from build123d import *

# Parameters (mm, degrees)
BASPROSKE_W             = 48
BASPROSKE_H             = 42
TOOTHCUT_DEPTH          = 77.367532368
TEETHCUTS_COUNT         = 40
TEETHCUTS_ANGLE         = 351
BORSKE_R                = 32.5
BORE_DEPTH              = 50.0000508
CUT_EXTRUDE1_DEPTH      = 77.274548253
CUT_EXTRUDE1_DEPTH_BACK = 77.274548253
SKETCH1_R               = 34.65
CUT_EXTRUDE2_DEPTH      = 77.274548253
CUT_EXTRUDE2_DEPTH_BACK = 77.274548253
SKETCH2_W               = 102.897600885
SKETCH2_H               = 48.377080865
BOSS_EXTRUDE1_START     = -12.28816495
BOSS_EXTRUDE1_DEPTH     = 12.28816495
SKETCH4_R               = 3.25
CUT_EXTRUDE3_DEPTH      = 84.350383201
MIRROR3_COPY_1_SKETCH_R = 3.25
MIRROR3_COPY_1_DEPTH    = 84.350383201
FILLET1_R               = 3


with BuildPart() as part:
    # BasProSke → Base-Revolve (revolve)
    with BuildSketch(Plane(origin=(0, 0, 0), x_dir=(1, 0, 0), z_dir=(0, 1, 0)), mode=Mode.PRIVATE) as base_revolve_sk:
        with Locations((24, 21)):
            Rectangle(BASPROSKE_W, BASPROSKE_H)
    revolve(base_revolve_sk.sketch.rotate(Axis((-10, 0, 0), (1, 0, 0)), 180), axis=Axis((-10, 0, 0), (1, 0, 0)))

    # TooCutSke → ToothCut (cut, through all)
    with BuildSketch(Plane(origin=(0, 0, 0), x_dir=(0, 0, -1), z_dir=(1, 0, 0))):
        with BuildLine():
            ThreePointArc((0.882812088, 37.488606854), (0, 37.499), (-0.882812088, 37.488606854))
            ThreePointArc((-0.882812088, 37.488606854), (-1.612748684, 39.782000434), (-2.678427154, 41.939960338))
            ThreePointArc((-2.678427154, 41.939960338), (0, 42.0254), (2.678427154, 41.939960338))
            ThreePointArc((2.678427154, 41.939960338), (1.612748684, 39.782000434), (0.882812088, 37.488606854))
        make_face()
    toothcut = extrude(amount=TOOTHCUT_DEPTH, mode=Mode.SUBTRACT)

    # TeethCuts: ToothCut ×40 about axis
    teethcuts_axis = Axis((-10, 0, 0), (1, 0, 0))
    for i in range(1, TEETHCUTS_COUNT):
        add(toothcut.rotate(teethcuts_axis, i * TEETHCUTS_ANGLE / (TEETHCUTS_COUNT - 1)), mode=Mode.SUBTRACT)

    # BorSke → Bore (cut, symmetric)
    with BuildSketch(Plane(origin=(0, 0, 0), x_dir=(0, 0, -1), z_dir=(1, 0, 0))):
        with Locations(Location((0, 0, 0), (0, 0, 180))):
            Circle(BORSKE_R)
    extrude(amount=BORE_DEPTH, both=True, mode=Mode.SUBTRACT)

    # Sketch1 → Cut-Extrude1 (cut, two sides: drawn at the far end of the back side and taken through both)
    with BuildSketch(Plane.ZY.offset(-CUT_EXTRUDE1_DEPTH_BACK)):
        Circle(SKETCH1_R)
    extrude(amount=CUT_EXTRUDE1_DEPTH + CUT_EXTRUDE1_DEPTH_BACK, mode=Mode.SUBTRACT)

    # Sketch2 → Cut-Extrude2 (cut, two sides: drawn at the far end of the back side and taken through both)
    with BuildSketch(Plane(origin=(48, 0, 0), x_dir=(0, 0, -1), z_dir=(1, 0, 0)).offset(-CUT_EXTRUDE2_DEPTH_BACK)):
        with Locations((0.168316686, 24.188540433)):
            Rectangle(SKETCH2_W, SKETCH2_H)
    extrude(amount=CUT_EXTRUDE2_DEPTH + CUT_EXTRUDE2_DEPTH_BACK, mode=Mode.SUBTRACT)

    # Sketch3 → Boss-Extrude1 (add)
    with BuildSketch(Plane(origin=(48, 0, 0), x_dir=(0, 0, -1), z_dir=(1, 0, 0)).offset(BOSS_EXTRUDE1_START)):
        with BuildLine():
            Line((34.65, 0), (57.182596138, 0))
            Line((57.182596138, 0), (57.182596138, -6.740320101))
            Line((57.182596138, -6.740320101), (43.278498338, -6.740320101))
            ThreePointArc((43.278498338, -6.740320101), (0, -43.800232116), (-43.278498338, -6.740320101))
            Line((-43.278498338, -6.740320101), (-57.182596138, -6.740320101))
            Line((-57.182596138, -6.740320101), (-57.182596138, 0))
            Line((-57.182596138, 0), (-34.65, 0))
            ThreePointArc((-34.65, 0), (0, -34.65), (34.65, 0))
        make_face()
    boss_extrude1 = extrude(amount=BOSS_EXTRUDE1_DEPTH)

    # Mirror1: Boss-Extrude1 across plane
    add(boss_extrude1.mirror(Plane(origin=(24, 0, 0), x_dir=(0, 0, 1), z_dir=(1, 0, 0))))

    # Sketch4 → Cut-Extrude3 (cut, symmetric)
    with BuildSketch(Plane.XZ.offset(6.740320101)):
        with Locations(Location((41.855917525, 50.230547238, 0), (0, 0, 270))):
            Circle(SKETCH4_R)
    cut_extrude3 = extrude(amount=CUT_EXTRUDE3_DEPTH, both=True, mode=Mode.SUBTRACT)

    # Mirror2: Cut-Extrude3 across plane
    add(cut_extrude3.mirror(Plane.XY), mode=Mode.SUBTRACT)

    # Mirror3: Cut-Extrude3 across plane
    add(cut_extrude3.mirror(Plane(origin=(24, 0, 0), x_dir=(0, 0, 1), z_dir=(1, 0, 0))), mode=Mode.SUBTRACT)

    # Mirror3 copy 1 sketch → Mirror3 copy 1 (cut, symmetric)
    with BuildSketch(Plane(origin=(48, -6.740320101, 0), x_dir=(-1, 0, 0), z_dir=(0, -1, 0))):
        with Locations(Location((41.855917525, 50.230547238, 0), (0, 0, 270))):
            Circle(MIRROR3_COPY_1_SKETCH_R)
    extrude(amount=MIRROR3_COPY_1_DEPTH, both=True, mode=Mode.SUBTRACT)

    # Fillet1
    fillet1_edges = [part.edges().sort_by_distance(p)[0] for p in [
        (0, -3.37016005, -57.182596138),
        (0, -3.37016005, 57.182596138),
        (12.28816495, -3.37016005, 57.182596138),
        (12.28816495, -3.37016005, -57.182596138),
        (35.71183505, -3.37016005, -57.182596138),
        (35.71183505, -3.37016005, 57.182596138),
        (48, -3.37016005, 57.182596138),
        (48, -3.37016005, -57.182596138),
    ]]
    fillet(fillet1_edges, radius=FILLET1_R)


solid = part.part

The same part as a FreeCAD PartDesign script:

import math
import FreeCAD as App
import Part
import Sketcher


def edges_at(feature, points):
    """Names of the edges that pass closest to the given points."""
    edges = feature.Shape.Edges
    near = lambda p: min(range(len(edges)), key=lambda i: edges[i].distToShape(Part.Vertex(*p))[0])
    return sorted({f"Edge{near(p) + 1}" for p in points})


def add_polygon(sketch, points):
    """Adds a closed chain of lines whose ends are joined by coincident constraints."""
    first, n = sketch.GeometryCount, len(points)
    for a, b in zip(points, points[1:] + points[:1]):
        sketch.addGeometry(Part.LineSegment(App.Vector(*a, 0), App.Vector(*b, 0)), False)
    for i in range(n):
        sketch.addConstraint(Sketcher.Constraint("Coincident", first + i, 2, first + (i + 1) % n, 1))

doc = App.newDocument("Part")
params = doc.addObject("Spreadsheet::Sheet", "Params")
for row, (alias, value) in enumerate([
    ("sketch1_width", "48 mm"),
    ("sketch1_height", "42 mm"),
    ("revolution_angle", "360 deg"),
    ("sketch2_radius", "16 mm"),
    ("sketch3_diameter", "65 mm"),
    ("pocket2_length", "100.000102 mm"),
    ("sketch4_diameter", "69.3 mm"),
    ("sketch6_radius", "34.65 mm"),
    ("pad1_length", "12.288165 mm"),
    ("sketch7_diameter", "6.5 mm"),
    ("pocket5_length", "168.700766 mm"),
    ("sketch8_diameter", "6.5 mm"),
    ("pocket6_length", "168.700766 mm"),
    ("fillet_radius", "3 mm"),
], start=1):
    params.set(f"A{row}", alias)
    params.set(f"B{row}", "=" + value)
    params.setAlias(f"B{row}", alias)

body = doc.addObject("PartDesign::Body", "Body")

# Sketch on XZ plane
sketch1 = body.newObject("Sketcher::SketchObject", "Sketch")
sketch1.AttachmentSupport = (doc.getObject("XZ_Plane"), [""])
sketch1.MapMode = "FlatFace"
add_polygon(sketch1, [(0, -42), (0, 0), (48, 0), (48, -42)])  # lines 0-3
sketch1.addConstraint([
    Sketcher.Constraint("Vertical", 0),
    Sketcher.Constraint("Horizontal", 1),
    Sketcher.Constraint("Vertical", 2),
    Sketcher.Constraint("Horizontal", 3),
    Sketcher.Constraint("Coincident", 0, 2, -1, 1),
    Sketcher.Constraint("DistanceX", 1, 1, 1, 2, 48.0),
    Sketcher.Constraint("DistanceY", 0, 1, 0, 2, 42.0),
])
sketch1.setExpression("Constraints[9]", "Params.sketch1_width")
sketch1.setExpression("Constraints[10]", "Params.sketch1_height")
revolution = body.newObject("PartDesign::Revolution", "Revolution")
revolution.Profile = sketch1
revolution.ReferenceAxis = (sketch1, ["H_Axis"])
revolution.setExpression("Angle", "Params.revolution_angle")

# Sketch on YZ plane
sketch2 = body.newObject("Sketcher::SketchObject", "Sketch001")
sketch2.AttachmentSupport = (doc.getObject("YZ_Plane"), [""])
sketch2.MapMode = "FlatFace"
sketch2.addGeometry([
    Part.ArcOfCircle(Part.Circle(App.Vector(0, 0, 0), App.Vector(0, 0, 1), 37.5), math.radians(-1.35), math.radians(1.35)),
    Part.ArcOfCircle(Part.Circle(App.Vector(33.8, -16.5, 0), App.Vector(0, 0, 1), 16), math.radians(59.4), math.radians(76.66)),
    Part.ArcOfCircle(Part.Circle(App.Vector(0, 0, 0), App.Vector(0, 0, 1), 42), math.radians(-3.65), math.radians(3.65)),
    Part.ArcOfCircle(Part.Circle(App.Vector(33.8, 16.5, 0), App.Vector(0, 0, 1), 16), math.radians(-76.66), math.radians(-59.4)),
], False)
sketch2.addConstraint([
    Sketcher.Constraint("Coincident", 0, 1, 1, 2),
    Sketcher.Constraint("Coincident", 1, 1, 2, 1),
    Sketcher.Constraint("Coincident", 2, 2, 3, 2),
    Sketcher.Constraint("Coincident", 3, 1, 0, 2),
    Sketcher.Constraint("Coincident", 0, 3, -1, 1),
    Sketcher.Constraint("Coincident", 2, 3, -1, 1),
    Sketcher.Constraint("Equal", 1, 3),
    Sketcher.Constraint("Symmetric", 1, 3, 3, 3, -1),
    Sketcher.Constraint("Radius", 1, 16.0),
    Sketcher.Constraint("Radius", 0, 37.499002),
    Sketcher.Constraint("Radius", 2, 42.0254),
    Sketcher.Constraint("DistanceY", 0, 1, 3, 3, 17.333798),
    Sketcher.Constraint("DistanceX", 1, 3, 1, 1, 8.143502),
])
sketch2.setExpression("Constraints[8]", "Params.sketch2_radius")
pocket1 = body.newObject("PartDesign::Pocket", "Pocket")
pocket1.Profile = sketch2
pocket1.Type = "ThroughAll"
pocket1.Reversed = True
doc.recompute()

polarpattern = body.newObject("PartDesign::PolarPattern", "PolarPattern")
polarpattern.Originals = [pocket1]
polarpattern.Axis = (doc.getObject("X_Axis"), [""])
polarpattern.Angle = 360
polarpattern.Occurrences = 40
body.Tip = polarpattern

# Sketch on YZ plane
sketch3 = body.newObject("Sketcher::SketchObject", "Sketch002")
sketch3.AttachmentSupport = (doc.getObject("YZ_Plane"), [""])
sketch3.MapMode = "FlatFace"
sketch3.addGeometry(Part.Circle(App.Vector(0, 0, 0), App.Vector(0, 0, 1), 32), False)
sketch3.addConstraint([
    Sketcher.Constraint("Coincident", 0, 3, -1, 1),
    Sketcher.Constraint("Diameter", 0, 65.0),
])
sketch3.setExpression("Constraints[1]", "Params.sketch3_diameter")
pocket2 = body.newObject("PartDesign::Pocket", "Pocket001")
pocket2.Profile = sketch3
pocket2.setExpression("Length", "Params.pocket2_length")
pocket2.Midplane = True

# Sketch on YZ plane
sketch4 = body.newObject("Sketcher::SketchObject", "Sketch003")
sketch4.AttachmentSupport = (doc.getObject("YZ_Plane"), [""])
sketch4.MapMode = "FlatFace"
sketch4.addGeometry(Part.Circle(App.Vector(0, 0, 0), App.Vector(0, 0, 1), 35), False)
sketch4.addConstraint([
    Sketcher.Constraint("Coincident", 0, 3, -1, 1),
    Sketcher.Constraint("Diameter", 0, 69.3),
])
sketch4.setExpression("Constraints[1]", "Params.sketch4_diameter")
pocket3 = body.newObject("PartDesign::Pocket", "Pocket002")
pocket3.Profile = sketch4
pocket3.Type = "ThroughAll"
pocket3.Midplane = True

# Sketch on YZ plane
sketch5 = body.newObject("Sketcher::SketchObject", "Sketch004")
sketch5.AttachmentSupport = (doc.getObject("YZ_Plane"), [""])
sketch5.MapMode = "FlatFace"
sketch5.AttachmentOffset = App.Placement(App.Vector(0, 0, 48), App.Rotation())
add_polygon(sketch5, [(48, 51), (0, 51), (0, -52), (48, -52)])  # lines 0-3
sketch5.addConstraint([
    Sketcher.Constraint("Horizontal", 0),
    Sketcher.Constraint("Vertical", 1),
    Sketcher.Constraint("Horizontal", 2),
    Sketcher.Constraint("Vertical", 3),
    Sketcher.Constraint("PointOnObject", 0, 2, -2),
    Sketcher.Constraint("DistanceY", 1, 2, 1, 1, 102.897601),
    Sketcher.Constraint("DistanceX", 0, 2, 0, 1, 48.377081),
    Sketcher.Constraint("DistanceY", -1, 1, 0, 2, 51.280484),
])
pocket4 = body.newObject("PartDesign::Pocket", "Pocket003")
pocket4.Profile = sketch5
pocket4.Type = "ThroughAll"
pocket4.Midplane = True

# Sketch on YZ plane
sketch6 = body.newObject("Sketcher::SketchObject", "Sketch005")
sketch6.AttachmentSupport = (doc.getObject("YZ_Plane"), [""])
sketch6.MapMode = "FlatFace"
sketch6.AttachmentOffset = App.Placement(App.Vector(0, 0, 35.711835), App.Rotation())
sketch6.addGeometry([
    Part.LineSegment(App.Vector(0, -57, 0), App.Vector(0, -35, 0)),  # 0
    Part.ArcOfCircle(Part.Circle(App.Vector(0, 0, 0), App.Vector(0, 0, 1), 35), math.radians(90), math.radians(270)),  # 1
    Part.LineSegment(App.Vector(0, 35, 0), App.Vector(0, 57, 0)),  # 2
    Part.LineSegment(App.Vector(0, 57, 0), App.Vector(-7, 57, 0)),  # 3
    Part.LineSegment(App.Vector(-7, 57, 0), App.Vector(-7, 43, 0)),  # 4
    Part.ArcOfCircle(Part.Circle(App.Vector(0, 0, 0), App.Vector(0, 0, 1), 44), math.radians(99), math.radians(261)),  # 5
    Part.LineSegment(App.Vector(-7, -43, 0), App.Vector(-7, -57, 0)),  # 6
    Part.LineSegment(App.Vector(-7, -57, 0), App.Vector(0, -57, 0)),  # 7
], False)
sketch6.addConstraint([
    Sketcher.Constraint("Coincident", 0, 2, 1, 2),
    Sketcher.Constraint("Coincident", 1, 1, 2, 1),
    Sketcher.Constraint("Coincident", 2, 2, 3, 1),
    Sketcher.Constraint("Coincident", 3, 2, 4, 1),
    Sketcher.Constraint("Coincident", 4, 2, 5, 1),
    Sketcher.Constraint("Coincident", 5, 2, 6, 1),
    Sketcher.Constraint("Coincident", 6, 2, 7, 1),
    Sketcher.Constraint("Coincident", 7, 2, 0, 1),
    Sketcher.Constraint("Vertical", 0),
    Sketcher.Constraint("Vertical", 2),
    Sketcher.Constraint("Horizontal", 3),
    Sketcher.Constraint("Vertical", 4),
    Sketcher.Constraint("Vertical", 6),
    Sketcher.Constraint("Horizontal", 7),
    Sketcher.Constraint("Coincident", 1, 3, -1, 1),
    Sketcher.Constraint("Coincident", 5, 3, -1, 1),
    Sketcher.Constraint("Symmetric", 2, 2, 7, 2, -1, 1),
    Sketcher.Constraint("PointOnObject", 0, 2, -2),
    Sketcher.Constraint("Vertical", 4, 2, 5, 2),
    Sketcher.Constraint("Radius", 1, 34.65),
    Sketcher.Constraint("Radius", 5, 43.800232),
    Sketcher.Constraint("DistanceX", 3, 2, 3, 1, 6.74032),
    Sketcher.Constraint("DistanceY", 0, 1, 0, 2, 22.532596),
])
sketch6.setExpression("Constraints[19]", "Params.sketch6_radius")
pad1 = body.newObject("PartDesign::Pad", "Pad")
pad1.Profile = sketch6
pad1.setExpression("Length", "Params.pad1_length")
doc.recompute()

datumplane = body.newObject("PartDesign::Plane", "DatumPlane")
datumplane.AttachmentSupport = (doc.getObject("YZ_Plane"), [""])
datumplane.MapMode = "FlatFace"
datumplane.AttachmentOffset = App.Placement(App.Vector(0, 0, 24), App.Rotation())
mirrored = body.newObject("PartDesign::Mirrored", "Mirrored")
mirrored.Originals = [pad1]
mirrored.MirrorPlane = (datumplane, [""])
body.Tip = mirrored

# Sketch on XZ plane
sketch7 = body.newObject("Sketcher::SketchObject", "Sketch006")
sketch7.AttachmentSupport = (doc.getObject("XZ_Plane"), [""])
sketch7.MapMode = "FlatFace"
sketch7.AttachmentOffset = App.Placement(App.Vector(0, 0, 6.74032), App.Rotation())
sketch7.addGeometry(Part.Circle(App.Vector(41.9, 50.2, 0), App.Vector(0, 0, 1), 3.2), False)
sketch7.addConstraint([
    Sketcher.Constraint("Diameter", 0, 6.5),
    Sketcher.Constraint("DistanceX", -1, 1, 0, 3, 41.855918),
    Sketcher.Constraint("DistanceY", -1, 1, 0, 3, 50.230547),
])
sketch7.setExpression("Constraints[0]", "Params.sketch7_diameter")
pocket5 = body.newObject("PartDesign::Pocket", "Pocket004")
pocket5.Profile = sketch7
pocket5.setExpression("Length", "Params.pocket5_length")
pocket5.Midplane = True
doc.recompute()

mirrored2 = body.newObject("PartDesign::Mirrored", "Mirrored001")
mirrored2.Originals = [pocket5]
mirrored2.MirrorPlane = (doc.getObject("XY_Plane"), [""])
body.Tip = mirrored2
doc.recompute()

datumplane2 = body.newObject("PartDesign::Plane", "DatumPlane001")
datumplane2.AttachmentSupport = (doc.getObject("YZ_Plane"), [""])
datumplane2.MapMode = "FlatFace"
datumplane2.AttachmentOffset = App.Placement(App.Vector(0, 0, 24), App.Rotation())
mirrored3 = body.newObject("PartDesign::Mirrored", "Mirrored002")
mirrored3.Originals = [pocket5]
mirrored3.MirrorPlane = (datumplane2, [""])
body.Tip = mirrored3

# Sketch on XZ plane
sketch8 = body.newObject("Sketcher::SketchObject", "Sketch007")
sketch8.AttachmentSupport = (doc.getObject("XZ_Plane"), [""])
sketch8.MapMode = "FlatFace"
sketch8.AttachmentOffset = App.Placement(App.Vector(0, 0, 6.74032), App.Rotation())
sketch8.addGeometry(Part.Circle(App.Vector(6.1, -50.2, 0), App.Vector(0, 0, 1), 3.2), False)
sketch8.addConstraint([
    Sketcher.Constraint("Diameter", 0, 6.5),
    Sketcher.Constraint("DistanceX", -1, 1, 0, 3, 6.144082),
    Sketcher.Constraint("DistanceY", 0, 3, -1, 1, 50.230547),
])
sketch8.setExpression("Constraints[0]", "Params.sketch8_diameter")
pocket6 = body.newObject("PartDesign::Pocket", "Pocket005")
pocket6.Profile = sketch8
pocket6.setExpression("Length", "Params.pocket6_length")
pocket6.Midplane = True
doc.recompute()

fillet = body.newObject("PartDesign::Fillet", "Fillet")
fillet.Base = (pocket6, edges_at(pocket6, [
    (0, -3.37, -57.183),
    (0, -3.37, 57.183),
    (12.288, -3.37, 57.183),
    (12.288, -3.37, -57.183),
    (35.712, -3.37, -57.183),
    (35.712, -3.37, 57.183),
    (48, -3.37, 57.183),
    (48, -3.37, -57.183),
]))
fillet.setExpression("Radius", "Params.fillet_radius")

doc.recompute()
